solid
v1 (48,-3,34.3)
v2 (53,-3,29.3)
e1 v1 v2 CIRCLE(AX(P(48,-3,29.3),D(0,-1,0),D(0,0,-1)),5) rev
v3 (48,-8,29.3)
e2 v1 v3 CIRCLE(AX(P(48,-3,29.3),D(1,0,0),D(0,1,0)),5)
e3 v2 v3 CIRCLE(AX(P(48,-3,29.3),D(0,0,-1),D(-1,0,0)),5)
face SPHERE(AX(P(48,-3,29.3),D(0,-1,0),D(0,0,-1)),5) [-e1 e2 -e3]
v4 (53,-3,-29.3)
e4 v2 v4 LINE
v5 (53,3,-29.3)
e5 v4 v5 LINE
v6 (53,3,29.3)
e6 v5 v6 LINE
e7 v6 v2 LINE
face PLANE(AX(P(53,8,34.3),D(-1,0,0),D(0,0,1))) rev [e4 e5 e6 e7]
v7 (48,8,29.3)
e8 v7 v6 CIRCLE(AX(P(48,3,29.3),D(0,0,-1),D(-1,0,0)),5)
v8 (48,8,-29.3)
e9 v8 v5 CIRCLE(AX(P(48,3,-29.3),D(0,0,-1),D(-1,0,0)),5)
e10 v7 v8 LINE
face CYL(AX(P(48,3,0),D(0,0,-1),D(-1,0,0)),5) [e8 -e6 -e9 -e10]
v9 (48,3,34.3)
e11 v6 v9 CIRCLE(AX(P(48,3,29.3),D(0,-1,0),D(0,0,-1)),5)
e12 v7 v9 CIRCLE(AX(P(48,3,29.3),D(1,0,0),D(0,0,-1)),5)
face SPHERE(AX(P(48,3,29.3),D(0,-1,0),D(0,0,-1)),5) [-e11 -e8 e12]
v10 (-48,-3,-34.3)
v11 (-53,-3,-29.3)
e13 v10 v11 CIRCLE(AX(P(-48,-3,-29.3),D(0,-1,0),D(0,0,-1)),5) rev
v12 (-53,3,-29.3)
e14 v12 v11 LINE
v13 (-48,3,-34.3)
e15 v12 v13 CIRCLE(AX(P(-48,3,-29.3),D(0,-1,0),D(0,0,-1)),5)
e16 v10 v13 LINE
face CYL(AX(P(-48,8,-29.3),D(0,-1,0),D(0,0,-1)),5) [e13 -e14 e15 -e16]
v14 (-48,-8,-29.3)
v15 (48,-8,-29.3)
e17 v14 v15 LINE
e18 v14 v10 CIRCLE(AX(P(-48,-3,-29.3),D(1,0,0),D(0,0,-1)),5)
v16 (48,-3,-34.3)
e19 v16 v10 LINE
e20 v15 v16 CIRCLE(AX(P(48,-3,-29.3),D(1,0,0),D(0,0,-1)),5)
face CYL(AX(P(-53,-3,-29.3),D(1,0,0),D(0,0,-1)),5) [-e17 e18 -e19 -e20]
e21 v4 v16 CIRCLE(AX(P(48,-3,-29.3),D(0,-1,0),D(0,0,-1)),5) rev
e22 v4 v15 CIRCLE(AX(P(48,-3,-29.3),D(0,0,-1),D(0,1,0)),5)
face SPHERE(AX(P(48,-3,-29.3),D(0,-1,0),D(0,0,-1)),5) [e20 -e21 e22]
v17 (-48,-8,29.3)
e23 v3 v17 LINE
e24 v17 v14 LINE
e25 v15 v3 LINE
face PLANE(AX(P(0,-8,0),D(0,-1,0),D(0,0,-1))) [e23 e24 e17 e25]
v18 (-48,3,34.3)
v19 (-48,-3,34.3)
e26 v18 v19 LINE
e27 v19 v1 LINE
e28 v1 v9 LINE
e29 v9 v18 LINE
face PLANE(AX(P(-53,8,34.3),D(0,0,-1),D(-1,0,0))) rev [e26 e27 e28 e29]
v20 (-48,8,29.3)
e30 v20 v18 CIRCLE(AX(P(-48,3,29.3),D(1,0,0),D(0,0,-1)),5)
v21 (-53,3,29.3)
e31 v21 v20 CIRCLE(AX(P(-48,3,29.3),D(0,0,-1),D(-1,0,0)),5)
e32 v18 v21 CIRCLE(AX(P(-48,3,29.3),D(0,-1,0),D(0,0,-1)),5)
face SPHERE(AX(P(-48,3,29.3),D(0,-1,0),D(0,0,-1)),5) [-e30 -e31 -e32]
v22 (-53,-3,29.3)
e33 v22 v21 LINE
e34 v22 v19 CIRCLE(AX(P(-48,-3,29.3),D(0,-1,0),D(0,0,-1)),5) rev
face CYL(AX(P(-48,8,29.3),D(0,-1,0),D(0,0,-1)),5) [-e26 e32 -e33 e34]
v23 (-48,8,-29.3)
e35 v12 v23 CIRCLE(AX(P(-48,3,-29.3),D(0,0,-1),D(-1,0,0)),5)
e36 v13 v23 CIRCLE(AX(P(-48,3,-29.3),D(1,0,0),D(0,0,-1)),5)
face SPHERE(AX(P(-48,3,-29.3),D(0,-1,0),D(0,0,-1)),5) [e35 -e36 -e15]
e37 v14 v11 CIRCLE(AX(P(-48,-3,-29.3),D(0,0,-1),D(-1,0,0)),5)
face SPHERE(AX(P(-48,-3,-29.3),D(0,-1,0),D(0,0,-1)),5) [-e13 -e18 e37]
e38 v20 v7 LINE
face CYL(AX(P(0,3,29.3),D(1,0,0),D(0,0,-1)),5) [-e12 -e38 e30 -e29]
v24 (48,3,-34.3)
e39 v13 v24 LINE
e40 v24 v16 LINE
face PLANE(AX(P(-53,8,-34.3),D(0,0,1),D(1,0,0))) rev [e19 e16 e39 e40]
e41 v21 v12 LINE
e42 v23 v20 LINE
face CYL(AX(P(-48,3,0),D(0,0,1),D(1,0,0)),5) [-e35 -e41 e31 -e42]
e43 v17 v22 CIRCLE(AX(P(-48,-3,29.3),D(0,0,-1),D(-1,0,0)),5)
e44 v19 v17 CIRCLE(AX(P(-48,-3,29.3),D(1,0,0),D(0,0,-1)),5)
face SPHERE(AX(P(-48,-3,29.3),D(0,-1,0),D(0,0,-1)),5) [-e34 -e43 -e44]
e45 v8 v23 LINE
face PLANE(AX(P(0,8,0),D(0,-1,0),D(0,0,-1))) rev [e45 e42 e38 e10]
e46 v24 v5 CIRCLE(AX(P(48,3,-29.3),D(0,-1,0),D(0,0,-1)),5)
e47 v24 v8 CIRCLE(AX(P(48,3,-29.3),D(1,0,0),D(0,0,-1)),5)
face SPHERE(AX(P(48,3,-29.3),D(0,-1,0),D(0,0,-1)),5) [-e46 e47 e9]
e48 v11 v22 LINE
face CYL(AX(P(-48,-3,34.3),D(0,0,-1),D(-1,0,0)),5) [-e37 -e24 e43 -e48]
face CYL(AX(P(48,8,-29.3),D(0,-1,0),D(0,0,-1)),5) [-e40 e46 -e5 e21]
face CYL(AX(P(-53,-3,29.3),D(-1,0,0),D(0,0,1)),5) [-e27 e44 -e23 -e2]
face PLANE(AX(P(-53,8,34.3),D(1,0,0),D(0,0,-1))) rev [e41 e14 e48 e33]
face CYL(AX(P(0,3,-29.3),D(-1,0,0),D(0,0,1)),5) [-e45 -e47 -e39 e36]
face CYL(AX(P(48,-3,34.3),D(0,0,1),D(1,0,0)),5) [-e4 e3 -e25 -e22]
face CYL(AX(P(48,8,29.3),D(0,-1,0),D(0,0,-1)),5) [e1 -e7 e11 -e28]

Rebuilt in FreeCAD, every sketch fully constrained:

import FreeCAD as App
import Part
import Sketcher
from FreeCAD import Vector


def edges_at(feature, points):
    """Names of the edges that pass closest to the given points."""
    edges = feature.Shape.Edges
    near = lambda p: min(range(len(edges)), key=lambda i: edges[i].distToShape(Part.Vertex(*p))[0])
    return sorted({f"Edge{near(p) + 1}" for p in points})


def add_polygon(sketch, points):
    """Adds a closed chain of lines whose ends are joined by coincident constraints."""
    first, n = sketch.GeometryCount, len(points)
    for a, b in zip(points, points[1:] + points[:1]):
        sketch.addGeometry(Part.LineSegment(App.Vector(*a, 0), App.Vector(*b, 0)), False)
    for i in range(n):
        sketch.addConstraint(Sketcher.Constraint("Coincident", first + i, 2, first + (i + 1) % n, 1))

doc = App.newDocument("Part")
body = doc.addObject("PartDesign::Body", "Body")

sketch1 = doc.addObject("Sketcher::SketchObject", "Sketch")
body.addObject(sketch1)
sketch1.AttachmentSupport = (doc.XZ_Plane, [""])
sketch1.MapMode = "FlatFace"
add_polygon(sketch1, [(-53, -34), (-53, 34), (53, 34), (53, -34)])
sketch1.addConstraint([
    Sketcher.Constraint("Vertical", 0),
    Sketcher.Constraint("Horizontal", 1),
    Sketcher.Constraint("Vertical", 2),
    Sketcher.Constraint("Horizontal", 3),
    Sketcher.Constraint("Symmetric", 0, 2, 2, 2, -1, 1),
    Sketcher.Constraint("DistanceX", 1, 1, 1, 2, 106.0),
    Sketcher.Constraint("DistanceY", 0, 1, 0, 2, 68.6),
])
pad1 = doc.addObject("PartDesign::Pad", "Pad")
body.addObject(pad1)
pad1.Profile = sketch1
pad1.Length = 16
pad1.Midplane = True
doc.recompute()

fillet = doc.addObject("PartDesign::Fillet", "Fillet")
body.addObject(fillet)
fillet.Base = (pad1, edges_at(pad1, [
    (53, 0, 34.3),
    (-53, 0, 34.3),
    (-53, 0, -34.3),
    (53, 0, -34.3),
]))
fillet.Radius = 5
doc.recompute()

fillet2 = doc.addObject("PartDesign::Fillet", "Fillet001")
body.addObject(fillet2)
fillet2.Base = (fillet, edges_at(fillet, [
    (-53, -8, 0),
    (-53, 8, 0),
    (53, -8, 0),
    (0, -8, 34.3),
    (0, -8, -34.3),
    (-51.536, -8, 32.836),
    (51.536, -8, 32.836),
    (51.536, -8, -32.836),
    (-51.536, -8, -32.836),
    (0, 8, -34.3),
    (53, 8, 0),
    (0, 8, 34.3),
    (-51.536, 8, 32.836),
    (51.536, 8, 32.836),
    (51.536, 8, -32.836),
    (-51.536, 8, -32.836),
]))
fillet2.Radius = 5

doc.recompute()
